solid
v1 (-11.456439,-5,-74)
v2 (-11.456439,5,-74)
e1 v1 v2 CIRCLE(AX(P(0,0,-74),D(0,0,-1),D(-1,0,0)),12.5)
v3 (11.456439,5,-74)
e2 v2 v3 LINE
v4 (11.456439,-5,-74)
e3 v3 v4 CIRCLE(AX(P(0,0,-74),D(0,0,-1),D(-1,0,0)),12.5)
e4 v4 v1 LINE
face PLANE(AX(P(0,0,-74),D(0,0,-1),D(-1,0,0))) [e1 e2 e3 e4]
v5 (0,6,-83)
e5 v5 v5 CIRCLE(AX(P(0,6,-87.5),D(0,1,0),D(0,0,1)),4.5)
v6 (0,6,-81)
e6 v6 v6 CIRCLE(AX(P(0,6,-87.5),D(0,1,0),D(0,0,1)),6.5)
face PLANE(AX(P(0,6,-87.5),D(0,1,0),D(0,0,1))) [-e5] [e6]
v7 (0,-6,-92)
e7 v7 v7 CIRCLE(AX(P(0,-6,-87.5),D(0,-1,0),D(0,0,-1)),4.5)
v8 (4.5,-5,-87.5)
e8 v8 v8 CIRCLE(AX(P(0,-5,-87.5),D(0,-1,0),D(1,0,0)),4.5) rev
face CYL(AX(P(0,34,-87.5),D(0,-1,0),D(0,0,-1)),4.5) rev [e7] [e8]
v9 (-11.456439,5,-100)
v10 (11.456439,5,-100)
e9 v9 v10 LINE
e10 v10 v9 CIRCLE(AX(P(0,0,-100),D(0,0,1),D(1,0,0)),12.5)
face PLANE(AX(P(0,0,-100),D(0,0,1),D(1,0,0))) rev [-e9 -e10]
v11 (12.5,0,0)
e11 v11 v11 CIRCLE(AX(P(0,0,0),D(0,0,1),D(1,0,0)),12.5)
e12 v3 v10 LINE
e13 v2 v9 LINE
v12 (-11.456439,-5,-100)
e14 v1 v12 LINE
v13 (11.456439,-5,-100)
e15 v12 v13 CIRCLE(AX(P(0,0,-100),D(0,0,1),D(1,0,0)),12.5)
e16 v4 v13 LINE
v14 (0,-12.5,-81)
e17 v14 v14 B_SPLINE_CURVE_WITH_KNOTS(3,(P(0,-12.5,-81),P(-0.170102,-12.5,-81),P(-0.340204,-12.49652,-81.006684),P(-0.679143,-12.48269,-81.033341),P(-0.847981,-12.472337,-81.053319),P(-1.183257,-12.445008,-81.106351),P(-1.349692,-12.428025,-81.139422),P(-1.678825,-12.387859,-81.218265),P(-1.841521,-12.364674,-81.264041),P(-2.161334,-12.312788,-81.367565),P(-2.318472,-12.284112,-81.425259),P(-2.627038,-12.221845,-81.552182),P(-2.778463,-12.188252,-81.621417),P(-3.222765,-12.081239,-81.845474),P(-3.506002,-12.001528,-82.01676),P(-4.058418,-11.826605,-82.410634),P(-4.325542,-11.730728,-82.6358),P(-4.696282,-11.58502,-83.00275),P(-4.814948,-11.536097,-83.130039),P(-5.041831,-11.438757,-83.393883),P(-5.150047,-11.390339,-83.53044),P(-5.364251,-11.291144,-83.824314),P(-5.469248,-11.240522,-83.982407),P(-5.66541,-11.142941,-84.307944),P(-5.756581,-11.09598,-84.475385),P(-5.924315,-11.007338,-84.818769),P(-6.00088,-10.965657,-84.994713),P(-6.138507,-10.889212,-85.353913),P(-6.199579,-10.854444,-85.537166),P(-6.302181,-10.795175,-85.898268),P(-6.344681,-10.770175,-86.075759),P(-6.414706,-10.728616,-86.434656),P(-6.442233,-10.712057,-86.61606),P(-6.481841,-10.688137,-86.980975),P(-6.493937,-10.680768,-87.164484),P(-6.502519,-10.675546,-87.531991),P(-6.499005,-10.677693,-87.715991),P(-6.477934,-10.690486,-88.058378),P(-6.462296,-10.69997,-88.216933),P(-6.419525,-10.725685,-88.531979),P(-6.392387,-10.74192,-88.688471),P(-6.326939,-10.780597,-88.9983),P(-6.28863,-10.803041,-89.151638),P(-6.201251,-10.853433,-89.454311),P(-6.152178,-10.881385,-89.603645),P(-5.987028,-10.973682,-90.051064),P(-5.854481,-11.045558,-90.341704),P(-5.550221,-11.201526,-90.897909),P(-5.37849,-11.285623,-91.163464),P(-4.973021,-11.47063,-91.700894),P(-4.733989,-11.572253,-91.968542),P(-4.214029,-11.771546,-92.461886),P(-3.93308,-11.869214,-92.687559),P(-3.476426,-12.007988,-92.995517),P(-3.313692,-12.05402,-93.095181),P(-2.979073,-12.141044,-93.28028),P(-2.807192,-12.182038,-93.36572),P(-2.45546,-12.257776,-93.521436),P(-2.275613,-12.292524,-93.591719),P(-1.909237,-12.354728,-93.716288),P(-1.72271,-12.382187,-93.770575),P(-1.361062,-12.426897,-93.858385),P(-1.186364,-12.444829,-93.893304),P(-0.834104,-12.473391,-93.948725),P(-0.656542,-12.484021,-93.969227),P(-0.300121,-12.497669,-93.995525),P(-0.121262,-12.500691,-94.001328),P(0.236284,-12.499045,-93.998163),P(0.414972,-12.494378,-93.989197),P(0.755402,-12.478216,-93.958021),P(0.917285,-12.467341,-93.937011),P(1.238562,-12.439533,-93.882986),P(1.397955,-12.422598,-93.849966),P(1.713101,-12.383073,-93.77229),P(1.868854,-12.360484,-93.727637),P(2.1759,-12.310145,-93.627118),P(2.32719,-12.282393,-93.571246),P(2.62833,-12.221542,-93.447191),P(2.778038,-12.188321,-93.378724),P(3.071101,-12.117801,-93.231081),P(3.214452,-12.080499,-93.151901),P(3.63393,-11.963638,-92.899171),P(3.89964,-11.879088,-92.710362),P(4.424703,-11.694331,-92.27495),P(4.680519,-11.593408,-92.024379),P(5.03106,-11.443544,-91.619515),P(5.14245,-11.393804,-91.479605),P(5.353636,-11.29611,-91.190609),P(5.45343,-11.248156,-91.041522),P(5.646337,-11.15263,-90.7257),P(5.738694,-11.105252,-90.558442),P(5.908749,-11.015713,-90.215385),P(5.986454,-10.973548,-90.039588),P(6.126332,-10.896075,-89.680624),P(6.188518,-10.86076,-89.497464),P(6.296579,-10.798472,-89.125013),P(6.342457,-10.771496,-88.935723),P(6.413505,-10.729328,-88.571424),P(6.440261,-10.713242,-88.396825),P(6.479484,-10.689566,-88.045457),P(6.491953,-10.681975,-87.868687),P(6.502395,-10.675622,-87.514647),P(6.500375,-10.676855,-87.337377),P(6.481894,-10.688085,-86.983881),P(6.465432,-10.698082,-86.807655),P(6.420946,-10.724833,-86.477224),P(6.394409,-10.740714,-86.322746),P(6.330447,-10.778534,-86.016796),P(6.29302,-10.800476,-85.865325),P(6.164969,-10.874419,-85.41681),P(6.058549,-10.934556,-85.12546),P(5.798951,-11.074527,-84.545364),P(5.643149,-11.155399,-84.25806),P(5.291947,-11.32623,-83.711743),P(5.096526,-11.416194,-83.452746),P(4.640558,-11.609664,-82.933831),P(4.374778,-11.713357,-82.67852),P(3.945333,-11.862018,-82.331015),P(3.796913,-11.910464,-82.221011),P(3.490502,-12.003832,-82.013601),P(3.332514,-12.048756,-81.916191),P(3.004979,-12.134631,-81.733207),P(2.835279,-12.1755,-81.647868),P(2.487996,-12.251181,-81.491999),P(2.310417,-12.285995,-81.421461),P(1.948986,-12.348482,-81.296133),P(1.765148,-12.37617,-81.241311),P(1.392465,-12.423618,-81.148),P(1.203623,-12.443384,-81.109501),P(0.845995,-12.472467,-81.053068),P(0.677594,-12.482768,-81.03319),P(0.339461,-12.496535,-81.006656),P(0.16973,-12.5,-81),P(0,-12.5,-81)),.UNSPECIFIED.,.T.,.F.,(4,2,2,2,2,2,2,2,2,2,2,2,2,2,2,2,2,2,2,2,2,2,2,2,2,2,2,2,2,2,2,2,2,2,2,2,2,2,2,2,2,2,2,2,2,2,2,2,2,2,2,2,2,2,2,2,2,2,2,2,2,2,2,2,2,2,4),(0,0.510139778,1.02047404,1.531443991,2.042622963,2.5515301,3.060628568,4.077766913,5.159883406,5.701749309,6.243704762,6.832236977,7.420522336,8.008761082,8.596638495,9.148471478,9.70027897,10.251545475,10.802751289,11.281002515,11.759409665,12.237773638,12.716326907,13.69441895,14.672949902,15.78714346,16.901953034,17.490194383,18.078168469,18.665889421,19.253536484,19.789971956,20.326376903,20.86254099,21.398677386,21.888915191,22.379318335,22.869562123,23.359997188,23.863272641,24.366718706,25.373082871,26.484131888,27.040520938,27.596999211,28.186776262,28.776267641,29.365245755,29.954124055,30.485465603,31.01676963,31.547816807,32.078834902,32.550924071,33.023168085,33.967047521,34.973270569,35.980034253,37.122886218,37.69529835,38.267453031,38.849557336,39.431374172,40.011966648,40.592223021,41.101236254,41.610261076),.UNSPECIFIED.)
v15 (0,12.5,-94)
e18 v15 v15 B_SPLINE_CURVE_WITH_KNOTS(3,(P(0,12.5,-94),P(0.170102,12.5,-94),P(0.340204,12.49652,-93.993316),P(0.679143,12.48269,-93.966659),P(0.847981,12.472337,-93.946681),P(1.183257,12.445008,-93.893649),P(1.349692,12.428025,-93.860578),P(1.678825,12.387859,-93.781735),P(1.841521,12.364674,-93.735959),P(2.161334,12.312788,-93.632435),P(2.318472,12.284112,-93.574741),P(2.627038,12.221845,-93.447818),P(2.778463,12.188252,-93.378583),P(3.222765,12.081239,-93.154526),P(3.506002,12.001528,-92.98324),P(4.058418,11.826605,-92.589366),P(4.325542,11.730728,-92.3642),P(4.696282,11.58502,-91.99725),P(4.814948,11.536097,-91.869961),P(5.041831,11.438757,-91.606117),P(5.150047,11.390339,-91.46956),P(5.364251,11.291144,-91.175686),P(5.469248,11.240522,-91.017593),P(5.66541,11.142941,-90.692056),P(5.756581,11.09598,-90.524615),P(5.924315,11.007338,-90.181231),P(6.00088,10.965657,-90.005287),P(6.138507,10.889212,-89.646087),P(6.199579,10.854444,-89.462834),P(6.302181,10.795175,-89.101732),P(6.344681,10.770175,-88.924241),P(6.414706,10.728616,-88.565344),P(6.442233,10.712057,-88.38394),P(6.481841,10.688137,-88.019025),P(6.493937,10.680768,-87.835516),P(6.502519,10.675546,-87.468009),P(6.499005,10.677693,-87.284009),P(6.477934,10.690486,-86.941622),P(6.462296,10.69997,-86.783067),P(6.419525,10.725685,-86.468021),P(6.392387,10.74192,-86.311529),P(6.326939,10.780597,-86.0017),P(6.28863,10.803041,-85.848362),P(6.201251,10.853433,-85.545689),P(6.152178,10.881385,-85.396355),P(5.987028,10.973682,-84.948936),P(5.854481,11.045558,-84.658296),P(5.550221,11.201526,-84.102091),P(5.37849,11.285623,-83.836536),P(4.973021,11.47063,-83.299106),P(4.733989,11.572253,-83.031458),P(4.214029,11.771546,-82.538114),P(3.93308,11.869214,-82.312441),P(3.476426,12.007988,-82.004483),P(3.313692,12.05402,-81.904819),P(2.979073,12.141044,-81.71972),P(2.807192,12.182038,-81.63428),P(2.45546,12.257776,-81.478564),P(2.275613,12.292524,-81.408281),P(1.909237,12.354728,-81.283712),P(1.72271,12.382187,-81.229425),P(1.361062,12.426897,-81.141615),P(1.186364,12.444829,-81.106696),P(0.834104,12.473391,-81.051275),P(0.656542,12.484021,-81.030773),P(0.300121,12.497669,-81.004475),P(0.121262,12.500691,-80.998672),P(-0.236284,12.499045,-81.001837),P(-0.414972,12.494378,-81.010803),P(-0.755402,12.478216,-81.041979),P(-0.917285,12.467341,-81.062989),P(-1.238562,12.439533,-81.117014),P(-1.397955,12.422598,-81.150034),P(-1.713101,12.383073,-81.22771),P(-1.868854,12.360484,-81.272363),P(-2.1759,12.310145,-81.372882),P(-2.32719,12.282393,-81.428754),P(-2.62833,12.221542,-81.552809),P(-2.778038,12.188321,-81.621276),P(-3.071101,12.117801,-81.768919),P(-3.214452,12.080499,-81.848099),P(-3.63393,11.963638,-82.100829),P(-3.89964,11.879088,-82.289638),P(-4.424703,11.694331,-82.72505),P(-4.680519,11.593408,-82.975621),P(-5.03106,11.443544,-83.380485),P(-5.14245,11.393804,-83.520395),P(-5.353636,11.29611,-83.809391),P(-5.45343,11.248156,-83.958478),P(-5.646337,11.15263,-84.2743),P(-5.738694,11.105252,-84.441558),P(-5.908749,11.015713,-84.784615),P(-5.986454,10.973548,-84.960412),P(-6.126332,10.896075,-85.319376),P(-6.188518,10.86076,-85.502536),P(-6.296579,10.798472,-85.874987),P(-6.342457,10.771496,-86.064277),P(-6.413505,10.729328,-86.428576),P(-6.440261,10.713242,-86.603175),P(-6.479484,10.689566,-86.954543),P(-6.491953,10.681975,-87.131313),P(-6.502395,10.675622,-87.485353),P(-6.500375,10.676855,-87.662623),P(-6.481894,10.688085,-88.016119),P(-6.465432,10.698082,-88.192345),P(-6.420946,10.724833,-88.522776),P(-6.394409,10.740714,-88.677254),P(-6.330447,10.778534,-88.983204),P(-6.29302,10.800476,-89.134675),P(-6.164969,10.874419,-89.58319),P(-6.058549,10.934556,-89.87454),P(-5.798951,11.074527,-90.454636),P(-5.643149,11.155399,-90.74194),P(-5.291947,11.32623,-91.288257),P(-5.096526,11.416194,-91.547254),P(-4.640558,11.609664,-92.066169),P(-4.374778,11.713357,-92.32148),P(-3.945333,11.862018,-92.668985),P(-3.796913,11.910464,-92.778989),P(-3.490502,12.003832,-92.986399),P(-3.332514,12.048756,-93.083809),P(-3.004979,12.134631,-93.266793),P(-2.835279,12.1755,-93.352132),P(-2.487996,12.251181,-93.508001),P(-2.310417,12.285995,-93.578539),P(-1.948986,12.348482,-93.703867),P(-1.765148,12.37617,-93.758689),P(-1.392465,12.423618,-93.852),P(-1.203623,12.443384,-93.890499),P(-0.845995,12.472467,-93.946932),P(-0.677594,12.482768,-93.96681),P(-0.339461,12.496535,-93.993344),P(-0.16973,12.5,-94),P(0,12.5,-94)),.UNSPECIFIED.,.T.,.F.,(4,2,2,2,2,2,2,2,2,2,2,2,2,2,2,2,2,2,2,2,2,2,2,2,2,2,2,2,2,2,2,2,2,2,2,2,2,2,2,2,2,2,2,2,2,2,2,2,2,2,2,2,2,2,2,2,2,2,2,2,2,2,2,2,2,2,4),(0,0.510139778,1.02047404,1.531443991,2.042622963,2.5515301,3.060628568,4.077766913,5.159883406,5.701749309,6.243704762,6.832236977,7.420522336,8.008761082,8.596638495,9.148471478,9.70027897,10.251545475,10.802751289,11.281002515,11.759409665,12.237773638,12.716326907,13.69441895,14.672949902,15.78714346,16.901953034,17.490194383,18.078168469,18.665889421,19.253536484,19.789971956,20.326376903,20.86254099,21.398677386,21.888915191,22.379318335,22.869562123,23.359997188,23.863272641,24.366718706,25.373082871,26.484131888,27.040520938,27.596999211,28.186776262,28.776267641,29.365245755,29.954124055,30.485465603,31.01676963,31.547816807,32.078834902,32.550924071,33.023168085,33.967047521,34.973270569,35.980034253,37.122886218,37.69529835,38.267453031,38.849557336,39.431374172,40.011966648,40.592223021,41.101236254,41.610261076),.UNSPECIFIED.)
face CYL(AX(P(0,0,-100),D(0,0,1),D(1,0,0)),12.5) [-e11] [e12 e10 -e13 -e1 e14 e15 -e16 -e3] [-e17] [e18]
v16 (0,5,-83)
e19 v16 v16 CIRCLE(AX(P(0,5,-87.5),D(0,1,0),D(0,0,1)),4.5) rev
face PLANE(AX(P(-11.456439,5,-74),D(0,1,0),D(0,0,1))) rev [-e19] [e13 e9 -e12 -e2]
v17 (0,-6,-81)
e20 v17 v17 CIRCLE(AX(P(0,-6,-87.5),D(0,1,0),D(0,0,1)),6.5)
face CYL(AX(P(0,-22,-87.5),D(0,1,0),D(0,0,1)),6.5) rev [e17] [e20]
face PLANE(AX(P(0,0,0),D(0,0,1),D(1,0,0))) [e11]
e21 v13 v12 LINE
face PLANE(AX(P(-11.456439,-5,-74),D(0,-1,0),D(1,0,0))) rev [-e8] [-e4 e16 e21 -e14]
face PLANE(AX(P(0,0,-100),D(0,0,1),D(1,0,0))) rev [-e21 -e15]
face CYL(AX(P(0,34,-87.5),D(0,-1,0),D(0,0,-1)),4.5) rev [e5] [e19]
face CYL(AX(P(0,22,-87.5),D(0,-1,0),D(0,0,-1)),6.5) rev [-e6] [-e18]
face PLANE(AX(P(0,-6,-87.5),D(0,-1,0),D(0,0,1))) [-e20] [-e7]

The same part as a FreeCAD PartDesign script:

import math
import FreeCAD as App
import Part
import Sketcher
Q = App.Units.Quantity

doc = App.newDocument("Part")
params = doc.addObject("Spreadsheet::Sheet", "Params")
for row, (alias, value) in enumerate([
    ("sketch1_diameter", "25 mm"),
    ("pad1_length", "100 mm"),
    ("sketch2_radius", "12.5 mm"),
    ("pocket1_length", "26 mm"),
    ("sketch3_diameter", "9 mm"),
    ("sketch4_diameter", "13 mm"),
    ("pocket3_length", "16 mm"),
], start=1):
    params.set(f"A{row}", alias)
    params.set(f"B{row}", "=" + value)
    params.setAlias(f"B{row}", alias)

body = doc.addObject("PartDesign::Body", "Body")

sketch1 = body.newObject("Sketcher::SketchObject", "Sketch")
sketch1.AttachmentSupport = (doc.getObject("XY_Plane"), [""])
sketch1.MapMode = "FlatFace"
sketch1.addGeometry(Part.Circle(App.Vector(0, 0, 0), App.Vector(0, 0, 1), 12.5), False)
sketch1.addConstraint(Sketcher.Constraint("Coincident", 0, 3, -1, 1))
sketch1.addConstraint(Sketcher.Constraint("Diameter", 0, Q("25 mm")))
sketch1.setExpression("Constraints[1]", "Params.sketch1_diameter")
pad1 = body.newObject("PartDesign::Pad", "Pad")
pad1.Profile = sketch1
pad1.setExpression("Length", "Params.pad1_length")
pad1.Reversed = True

sketch2 = body.newObject("Sketcher::SketchObject", "Sketch001")
sketch2.AttachmentSupport = (doc.getObject("XY_Plane"), [""])
sketch2.MapMode = "FlatFace"
sketch2.AttachmentOffset = App.Placement(App.Vector(0, 0, -74), App.Rotation())
sketch2.addGeometry(Part.LineSegment(App.Vector(-11.456439, 5, 0), App.Vector(11.456439, 5, 0)), False)
sketch2.addGeometry(Part.ArcOfCircle(Part.Circle(App.Vector(0, 0, 0), App.Vector(0, 0, 1), 12.5), math.radians(-23.578178), math.radians(23.578178)), False)
sketch2.addGeometry(Part.LineSegment(App.Vector(11.456439, -5, 0), App.Vector(-11.456439, -5, 0)), False)
sketch2.addGeometry(Part.ArcOfCircle(Part.Circle(App.Vector(0, 0, 0), App.Vector(0, 0, 1), 12.5), math.radians(156.421822), math.radians(203.578178)), False)
sketch2.addConstraint(Sketcher.Constraint("Coincident", 0, 2, 1, 2))
sketch2.addConstraint(Sketcher.Constraint("Coincident", 1, 1, 2, 1))
sketch2.addConstraint(Sketcher.Constraint("Coincident", 2, 2, 3, 2))
sketch2.addConstraint(Sketcher.Constraint("Coincident", 3, 1, 0, 1))
sketch2.addConstraint(Sketcher.Constraint("Horizontal", 0))
sketch2.addConstraint(Sketcher.Constraint("Horizontal", 2))
sketch2.addConstraint(Sketcher.Constraint("Coincident", 1, 3, -1, 1))
sketch2.addConstraint(Sketcher.Constraint("Coincident", 3, 3, -1, 1))
sketch2.addConstraint(Sketcher.Constraint("Equal", 1, 3))
sketch2.addConstraint(Sketcher.Constraint("Vertical", 0, 2, 1, 1))
sketch2.addConstraint(Sketcher.Constraint("Radius", 1, Q("12.5 mm")))
sketch2.addConstraint(Sketcher.Constraint("DistanceY", -1, 1, 0, 2, Q("5 mm")))
sketch2.setExpression("Constraints[10]", "Params.sketch2_radius")
pocket1 = body.newObject("PartDesign::Pocket", "Pocket")
pocket1.Profile = sketch2
pocket1.setExpression("Length", "Params.pocket1_length")

sketch3 = body.newObject("Sketcher::SketchObject", "Sketch002")
sketch3.AttachmentSupport = (doc.getObject("XZ_Plane"), [""])
sketch3.MapMode = "FlatFace"
sketch3.addGeometry(Part.Circle(App.Vector(0, -87.5, 0), App.Vector(0, 0, 1), 4.5), False)
sketch3.addConstraint(Sketcher.Constraint("PointOnObject", 0, 3, -2))
sketch3.addConstraint(Sketcher.Constraint("Diameter", 0, Q("9 mm")))
sketch3.addConstraint(Sketcher.Constraint("DistanceY", 0, 3, -1, 1, Q("87.5 mm")))
sketch3.setExpression("Constraints[1]", "Params.sketch3_diameter")
pocket2 = body.newObject("PartDesign::Pocket", "Pocket001")
pocket2.Profile = sketch3
pocket2.Type = "ThroughAll"
pocket2.Midplane = True

sketch4 = body.newObject("Sketcher::SketchObject", "Sketch003")
sketch4.AttachmentSupport = (doc.getObject("XZ_Plane"), [""])
sketch4.MapMode = "FlatFace"
sketch4.AttachmentOffset = App.Placement(App.Vector(0, 0, -6), App.Rotation())
sketch4.addGeometry(Part.Circle(App.Vector(0, -87.5, 0), App.Vector(0, 0, 1), 6.5), False)
sketch4.addConstraint(Sketcher.Constraint("PointOnObject", 0, 3, -2))
sketch4.addConstraint(Sketcher.Constraint("Diameter", 0, Q("13 mm")))
sketch4.addConstraint(Sketcher.Constraint("DistanceY", 0, 3, -1, 1, Q("87.5 mm")))
sketch4.setExpression("Constraints[1]", "Params.sketch4_diameter")
pocket3 = body.newObject("PartDesign::Pocket", "Pocket002")
pocket3.Profile = sketch4
pocket3.setExpression("Length", "Params.pocket3_length")
doc.recompute()

mirrored = body.newObject("PartDesign::Mirrored", "Mirrored")
mirrored.Originals = [pocket3]
mirrored.MirrorPlane = (doc.getObject("XZ_Plane"), [""])
body.Tip = mirrored

doc.recompute()
